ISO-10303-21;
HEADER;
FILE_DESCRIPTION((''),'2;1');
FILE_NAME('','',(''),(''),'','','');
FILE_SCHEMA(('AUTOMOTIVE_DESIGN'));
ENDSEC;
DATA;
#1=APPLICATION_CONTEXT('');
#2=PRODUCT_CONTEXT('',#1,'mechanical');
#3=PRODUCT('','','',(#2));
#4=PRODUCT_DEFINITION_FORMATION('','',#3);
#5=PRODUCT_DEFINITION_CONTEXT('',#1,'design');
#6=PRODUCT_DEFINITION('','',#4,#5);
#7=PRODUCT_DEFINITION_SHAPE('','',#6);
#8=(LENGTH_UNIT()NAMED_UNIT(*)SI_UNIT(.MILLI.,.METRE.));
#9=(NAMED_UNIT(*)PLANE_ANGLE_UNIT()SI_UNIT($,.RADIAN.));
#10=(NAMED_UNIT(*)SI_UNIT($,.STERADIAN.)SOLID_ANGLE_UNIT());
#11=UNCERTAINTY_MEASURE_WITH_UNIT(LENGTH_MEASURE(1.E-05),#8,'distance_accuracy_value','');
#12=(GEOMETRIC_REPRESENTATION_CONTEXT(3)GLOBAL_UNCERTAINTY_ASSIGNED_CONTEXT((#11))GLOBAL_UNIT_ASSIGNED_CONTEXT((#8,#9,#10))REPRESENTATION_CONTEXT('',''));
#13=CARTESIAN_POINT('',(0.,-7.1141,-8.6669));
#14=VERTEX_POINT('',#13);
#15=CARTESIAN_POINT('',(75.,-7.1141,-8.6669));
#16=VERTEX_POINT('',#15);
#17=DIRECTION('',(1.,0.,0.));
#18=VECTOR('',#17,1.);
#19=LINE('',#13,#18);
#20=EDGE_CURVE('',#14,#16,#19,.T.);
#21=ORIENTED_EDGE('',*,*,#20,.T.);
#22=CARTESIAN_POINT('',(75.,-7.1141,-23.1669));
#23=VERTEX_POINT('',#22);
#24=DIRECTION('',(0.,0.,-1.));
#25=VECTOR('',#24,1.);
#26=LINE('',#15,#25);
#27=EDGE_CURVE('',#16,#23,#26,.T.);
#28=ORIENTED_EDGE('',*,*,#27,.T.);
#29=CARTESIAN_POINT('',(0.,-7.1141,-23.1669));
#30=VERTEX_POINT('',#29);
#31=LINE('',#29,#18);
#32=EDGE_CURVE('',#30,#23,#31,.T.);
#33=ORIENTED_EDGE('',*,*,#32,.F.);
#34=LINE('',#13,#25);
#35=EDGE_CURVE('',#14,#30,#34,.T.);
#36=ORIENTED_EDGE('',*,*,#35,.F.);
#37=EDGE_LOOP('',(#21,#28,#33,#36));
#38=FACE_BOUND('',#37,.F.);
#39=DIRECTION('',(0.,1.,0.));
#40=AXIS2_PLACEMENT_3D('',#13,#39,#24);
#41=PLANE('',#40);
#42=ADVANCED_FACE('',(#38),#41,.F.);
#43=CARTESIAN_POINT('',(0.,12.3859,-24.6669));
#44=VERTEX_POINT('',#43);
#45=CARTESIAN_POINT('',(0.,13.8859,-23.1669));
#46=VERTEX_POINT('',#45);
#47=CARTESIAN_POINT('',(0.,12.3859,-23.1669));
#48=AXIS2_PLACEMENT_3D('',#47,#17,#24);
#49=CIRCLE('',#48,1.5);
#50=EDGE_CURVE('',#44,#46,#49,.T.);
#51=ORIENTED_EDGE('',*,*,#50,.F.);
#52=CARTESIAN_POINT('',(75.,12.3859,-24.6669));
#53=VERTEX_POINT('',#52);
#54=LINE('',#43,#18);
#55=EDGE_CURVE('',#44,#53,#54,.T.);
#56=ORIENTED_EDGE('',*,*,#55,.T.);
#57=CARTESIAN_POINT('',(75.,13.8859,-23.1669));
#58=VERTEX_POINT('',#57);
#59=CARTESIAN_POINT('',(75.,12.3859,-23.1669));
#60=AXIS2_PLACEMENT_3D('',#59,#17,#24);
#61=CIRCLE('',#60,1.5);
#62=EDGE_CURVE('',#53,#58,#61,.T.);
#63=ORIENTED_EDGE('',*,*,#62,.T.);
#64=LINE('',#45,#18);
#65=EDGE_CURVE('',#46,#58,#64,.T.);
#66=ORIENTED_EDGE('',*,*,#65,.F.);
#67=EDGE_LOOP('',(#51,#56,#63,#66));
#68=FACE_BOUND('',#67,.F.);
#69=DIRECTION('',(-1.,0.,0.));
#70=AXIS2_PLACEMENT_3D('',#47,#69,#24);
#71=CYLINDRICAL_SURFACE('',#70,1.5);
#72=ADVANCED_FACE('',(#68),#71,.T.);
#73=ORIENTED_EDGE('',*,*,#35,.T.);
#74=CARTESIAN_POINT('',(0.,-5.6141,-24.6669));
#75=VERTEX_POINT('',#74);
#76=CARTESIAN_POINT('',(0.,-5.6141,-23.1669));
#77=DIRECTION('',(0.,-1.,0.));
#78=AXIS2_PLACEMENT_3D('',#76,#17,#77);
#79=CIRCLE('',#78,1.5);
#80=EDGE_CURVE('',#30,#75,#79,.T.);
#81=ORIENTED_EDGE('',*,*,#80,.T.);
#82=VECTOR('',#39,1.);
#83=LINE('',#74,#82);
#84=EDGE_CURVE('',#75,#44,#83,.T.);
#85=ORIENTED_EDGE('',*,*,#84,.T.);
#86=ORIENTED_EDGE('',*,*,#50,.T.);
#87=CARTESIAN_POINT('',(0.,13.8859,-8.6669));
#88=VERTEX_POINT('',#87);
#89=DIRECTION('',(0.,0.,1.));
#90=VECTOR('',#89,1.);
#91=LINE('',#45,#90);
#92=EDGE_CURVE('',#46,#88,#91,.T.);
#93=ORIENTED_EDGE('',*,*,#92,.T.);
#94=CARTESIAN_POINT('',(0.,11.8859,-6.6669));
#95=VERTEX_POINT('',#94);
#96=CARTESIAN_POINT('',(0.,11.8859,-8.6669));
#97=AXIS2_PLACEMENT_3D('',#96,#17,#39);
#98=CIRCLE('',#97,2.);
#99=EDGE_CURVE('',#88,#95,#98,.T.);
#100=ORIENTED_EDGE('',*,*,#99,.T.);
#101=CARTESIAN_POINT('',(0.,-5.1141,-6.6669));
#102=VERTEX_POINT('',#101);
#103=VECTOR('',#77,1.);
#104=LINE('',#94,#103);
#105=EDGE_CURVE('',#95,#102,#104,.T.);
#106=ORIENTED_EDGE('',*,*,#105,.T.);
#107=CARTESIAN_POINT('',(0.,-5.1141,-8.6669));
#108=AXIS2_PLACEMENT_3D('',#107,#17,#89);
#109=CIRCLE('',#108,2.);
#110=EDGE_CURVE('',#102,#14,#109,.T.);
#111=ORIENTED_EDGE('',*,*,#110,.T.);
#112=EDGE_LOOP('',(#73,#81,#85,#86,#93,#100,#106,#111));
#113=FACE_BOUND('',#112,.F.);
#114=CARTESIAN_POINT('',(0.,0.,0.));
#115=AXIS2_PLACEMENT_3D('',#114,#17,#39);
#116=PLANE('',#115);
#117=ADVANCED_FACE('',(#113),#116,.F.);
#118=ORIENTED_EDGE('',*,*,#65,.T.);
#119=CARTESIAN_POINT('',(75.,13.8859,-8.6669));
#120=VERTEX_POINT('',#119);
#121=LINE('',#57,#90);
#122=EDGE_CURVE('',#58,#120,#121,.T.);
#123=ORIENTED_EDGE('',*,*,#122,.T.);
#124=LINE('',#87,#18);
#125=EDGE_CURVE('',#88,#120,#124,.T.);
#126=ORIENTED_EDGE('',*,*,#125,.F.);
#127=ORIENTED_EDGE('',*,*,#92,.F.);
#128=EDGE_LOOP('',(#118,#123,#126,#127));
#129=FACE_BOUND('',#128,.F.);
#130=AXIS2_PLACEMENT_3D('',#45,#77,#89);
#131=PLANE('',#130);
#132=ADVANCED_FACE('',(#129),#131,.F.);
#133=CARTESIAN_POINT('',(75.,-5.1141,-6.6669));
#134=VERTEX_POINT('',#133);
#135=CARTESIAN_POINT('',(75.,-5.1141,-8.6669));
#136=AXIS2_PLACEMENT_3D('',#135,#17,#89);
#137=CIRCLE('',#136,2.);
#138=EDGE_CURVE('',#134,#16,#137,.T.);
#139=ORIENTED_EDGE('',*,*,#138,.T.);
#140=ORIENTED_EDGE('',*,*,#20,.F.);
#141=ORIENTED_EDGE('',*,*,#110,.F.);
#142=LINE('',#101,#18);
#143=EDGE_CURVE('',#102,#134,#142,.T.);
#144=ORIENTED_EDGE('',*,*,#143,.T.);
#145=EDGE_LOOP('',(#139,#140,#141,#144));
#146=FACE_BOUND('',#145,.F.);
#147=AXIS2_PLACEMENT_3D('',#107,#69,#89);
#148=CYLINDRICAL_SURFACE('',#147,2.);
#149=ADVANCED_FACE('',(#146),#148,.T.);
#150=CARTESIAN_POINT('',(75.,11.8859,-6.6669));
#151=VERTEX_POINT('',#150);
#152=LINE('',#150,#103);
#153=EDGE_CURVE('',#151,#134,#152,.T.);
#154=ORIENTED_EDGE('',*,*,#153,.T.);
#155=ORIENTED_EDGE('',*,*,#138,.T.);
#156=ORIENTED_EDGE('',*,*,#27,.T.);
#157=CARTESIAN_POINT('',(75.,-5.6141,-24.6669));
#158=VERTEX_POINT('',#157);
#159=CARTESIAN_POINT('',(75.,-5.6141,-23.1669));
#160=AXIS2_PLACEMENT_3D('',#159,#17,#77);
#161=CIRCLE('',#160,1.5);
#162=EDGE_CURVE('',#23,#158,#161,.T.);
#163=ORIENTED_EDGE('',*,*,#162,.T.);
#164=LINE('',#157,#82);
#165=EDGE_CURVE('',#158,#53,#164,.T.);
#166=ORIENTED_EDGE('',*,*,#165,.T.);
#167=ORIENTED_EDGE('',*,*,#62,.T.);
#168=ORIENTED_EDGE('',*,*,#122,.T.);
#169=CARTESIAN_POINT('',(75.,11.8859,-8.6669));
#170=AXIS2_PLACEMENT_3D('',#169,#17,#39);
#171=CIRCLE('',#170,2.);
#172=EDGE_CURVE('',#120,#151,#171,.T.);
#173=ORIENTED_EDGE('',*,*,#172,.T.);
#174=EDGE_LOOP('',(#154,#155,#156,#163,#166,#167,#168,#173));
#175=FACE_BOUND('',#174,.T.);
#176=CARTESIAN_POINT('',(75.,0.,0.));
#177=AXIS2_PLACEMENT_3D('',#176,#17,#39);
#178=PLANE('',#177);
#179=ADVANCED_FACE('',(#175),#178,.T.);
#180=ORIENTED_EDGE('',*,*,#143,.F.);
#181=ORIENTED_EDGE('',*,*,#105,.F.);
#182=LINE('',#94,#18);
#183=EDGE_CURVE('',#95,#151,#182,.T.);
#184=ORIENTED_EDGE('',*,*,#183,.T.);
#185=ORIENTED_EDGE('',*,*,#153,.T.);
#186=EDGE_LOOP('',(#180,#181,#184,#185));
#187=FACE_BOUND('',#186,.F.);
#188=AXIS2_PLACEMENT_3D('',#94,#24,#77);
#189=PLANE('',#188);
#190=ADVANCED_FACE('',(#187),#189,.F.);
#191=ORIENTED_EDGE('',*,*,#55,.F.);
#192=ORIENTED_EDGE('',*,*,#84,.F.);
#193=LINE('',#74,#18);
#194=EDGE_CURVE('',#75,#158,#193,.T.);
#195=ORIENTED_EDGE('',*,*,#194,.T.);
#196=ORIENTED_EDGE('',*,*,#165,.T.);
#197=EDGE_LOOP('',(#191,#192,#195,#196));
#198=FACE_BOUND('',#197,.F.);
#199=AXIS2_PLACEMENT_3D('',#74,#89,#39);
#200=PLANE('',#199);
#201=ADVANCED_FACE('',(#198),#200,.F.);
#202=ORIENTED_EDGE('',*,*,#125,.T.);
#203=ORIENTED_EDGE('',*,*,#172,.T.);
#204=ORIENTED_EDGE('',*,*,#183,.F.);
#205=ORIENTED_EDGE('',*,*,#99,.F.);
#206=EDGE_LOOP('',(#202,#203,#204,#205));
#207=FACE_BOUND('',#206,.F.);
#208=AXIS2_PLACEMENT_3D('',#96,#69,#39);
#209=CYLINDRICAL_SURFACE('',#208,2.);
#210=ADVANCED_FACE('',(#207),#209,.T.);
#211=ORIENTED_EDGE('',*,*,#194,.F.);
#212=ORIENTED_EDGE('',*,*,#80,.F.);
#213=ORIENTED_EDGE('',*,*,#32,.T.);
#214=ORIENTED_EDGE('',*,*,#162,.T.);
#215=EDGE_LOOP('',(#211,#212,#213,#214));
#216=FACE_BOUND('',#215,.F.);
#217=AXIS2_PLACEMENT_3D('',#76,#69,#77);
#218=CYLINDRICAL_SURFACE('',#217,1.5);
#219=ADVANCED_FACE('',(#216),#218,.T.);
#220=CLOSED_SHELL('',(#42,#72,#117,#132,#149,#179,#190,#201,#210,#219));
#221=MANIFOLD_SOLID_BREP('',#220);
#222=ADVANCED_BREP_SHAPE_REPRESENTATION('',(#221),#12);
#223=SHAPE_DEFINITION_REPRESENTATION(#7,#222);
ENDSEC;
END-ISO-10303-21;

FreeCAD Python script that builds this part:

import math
import FreeCAD as App
import Part
import Sketcher

V = App.Vector

doc = App.newDocument("Part")
params = doc.addObject("Spreadsheet::Sheet", "Params")
for row, (alias, value) in enumerate([
    ("sketch1_radius", "2 mm"),
    ("sketch1_radius2", "1.5 mm"),
    ("sketch1_width", "18 mm"),
    ("pad1_length", "75 mm"),
], start=1):
    params.set(f"A{row}", alias)
    params.set(f"B{row}", "=" + value)
    params.setAlias(f"B{row}", alias)

body = doc.addObject("PartDesign::Body", "Body")

# Sketch on YZ plane
sketch1 = body.newObject("Sketcher::SketchObject", "Sketch")
sketch1.AttachmentSupport = (doc.getObject("YZ_Plane"), [""])
sketch1.MapMode = "FlatFace"
sketch1.addGeometry([
    Part.ArcOfCircle(Part.Circle(V(11.8859, -8.6669, 0), V(0, 0, 1), 2), math.radians(0), math.radians(90)),  # 0
    Part.LineSegment(V(11.8859, -6.6669, 0), V(-5.1141, -6.6669, 0)),  # 1
    Part.ArcOfCircle(Part.Circle(V(-5.1141, -8.6669, 0), V(0, 0, 1), 2), math.radians(90), math.radians(180)),  # 2
    Part.LineSegment(V(-7.1141, -8.6669, 0), V(-7.1141, -23.1669, 0)),  # 3
    Part.ArcOfCircle(Part.Circle(V(-5.6141, -23.1669, 0), V(0, 0, 1), 1.5), math.radians(180), math.radians(270)),  # 4
    Part.LineSegment(V(-5.6141, -24.6669, 0), V(12.3859, -24.6669, 0)),  # 5
    Part.ArcOfCircle(Part.Circle(V(12.3859, -23.1669, 0), V(0, 0, 1), 1.5), math.radians(-90), math.radians(0)),  # 6
    Part.LineSegment(V(13.8859, -23.1669, 0), V(13.8859, -8.6669, 0)),  # 7
], False)
sketch1.addConstraint([
    Sketcher.Constraint("Tangent", 0, 2, 1, 1),
    Sketcher.Constraint("Tangent", 1, 2, 2, 1),
    Sketcher.Constraint("Tangent", 2, 2, 3, 1),
    Sketcher.Constraint("Tangent", 3, 2, 4, 1),
    Sketcher.Constraint("Tangent", 4, 2, 5, 1),
    Sketcher.Constraint("Tangent", 5, 2, 6, 1),
    Sketcher.Constraint("Tangent", 6, 2, 7, 1),
    Sketcher.Constraint("Tangent", 7, 2, 0, 1),
    Sketcher.Constraint("Horizontal", 1),
    Sketcher.Constraint("Vertical", 3),
    Sketcher.Constraint("Horizontal", 5),
    Sketcher.Constraint("Vertical", 7),
    Sketcher.Constraint("Equal", 0, 2),
    Sketcher.Constraint("Equal", 4, 6),
    Sketcher.Constraint("Radius", 0, 2.0),
    Sketcher.Constraint("Radius", 4, 1.5),
    Sketcher.Constraint("DistanceX", 5, 1, 5, 2, 18.0),
    Sketcher.Constraint("DistanceY", 4, 2, 1, 2, 18.0),
    Sketcher.Constraint("DistanceX", -1, 1, 0, 3, 11.886),
    Sketcher.Constraint("DistanceY", 0, 3, -1, 1, 8.667),
])
sketch1.setExpression("Constraints[14]", "Params.sketch1_radius")
sketch1.setExpression("Constraints[15]", "Params.sketch1_radius2")
sketch1.setExpression("Constraints[16]", "Params.sketch1_width")
pad1 = body.newObject("PartDesign::Pad", "Pad")
pad1.Profile = sketch1
pad1.setExpression("Length", "Params.pad1_length")

doc.recompute()
